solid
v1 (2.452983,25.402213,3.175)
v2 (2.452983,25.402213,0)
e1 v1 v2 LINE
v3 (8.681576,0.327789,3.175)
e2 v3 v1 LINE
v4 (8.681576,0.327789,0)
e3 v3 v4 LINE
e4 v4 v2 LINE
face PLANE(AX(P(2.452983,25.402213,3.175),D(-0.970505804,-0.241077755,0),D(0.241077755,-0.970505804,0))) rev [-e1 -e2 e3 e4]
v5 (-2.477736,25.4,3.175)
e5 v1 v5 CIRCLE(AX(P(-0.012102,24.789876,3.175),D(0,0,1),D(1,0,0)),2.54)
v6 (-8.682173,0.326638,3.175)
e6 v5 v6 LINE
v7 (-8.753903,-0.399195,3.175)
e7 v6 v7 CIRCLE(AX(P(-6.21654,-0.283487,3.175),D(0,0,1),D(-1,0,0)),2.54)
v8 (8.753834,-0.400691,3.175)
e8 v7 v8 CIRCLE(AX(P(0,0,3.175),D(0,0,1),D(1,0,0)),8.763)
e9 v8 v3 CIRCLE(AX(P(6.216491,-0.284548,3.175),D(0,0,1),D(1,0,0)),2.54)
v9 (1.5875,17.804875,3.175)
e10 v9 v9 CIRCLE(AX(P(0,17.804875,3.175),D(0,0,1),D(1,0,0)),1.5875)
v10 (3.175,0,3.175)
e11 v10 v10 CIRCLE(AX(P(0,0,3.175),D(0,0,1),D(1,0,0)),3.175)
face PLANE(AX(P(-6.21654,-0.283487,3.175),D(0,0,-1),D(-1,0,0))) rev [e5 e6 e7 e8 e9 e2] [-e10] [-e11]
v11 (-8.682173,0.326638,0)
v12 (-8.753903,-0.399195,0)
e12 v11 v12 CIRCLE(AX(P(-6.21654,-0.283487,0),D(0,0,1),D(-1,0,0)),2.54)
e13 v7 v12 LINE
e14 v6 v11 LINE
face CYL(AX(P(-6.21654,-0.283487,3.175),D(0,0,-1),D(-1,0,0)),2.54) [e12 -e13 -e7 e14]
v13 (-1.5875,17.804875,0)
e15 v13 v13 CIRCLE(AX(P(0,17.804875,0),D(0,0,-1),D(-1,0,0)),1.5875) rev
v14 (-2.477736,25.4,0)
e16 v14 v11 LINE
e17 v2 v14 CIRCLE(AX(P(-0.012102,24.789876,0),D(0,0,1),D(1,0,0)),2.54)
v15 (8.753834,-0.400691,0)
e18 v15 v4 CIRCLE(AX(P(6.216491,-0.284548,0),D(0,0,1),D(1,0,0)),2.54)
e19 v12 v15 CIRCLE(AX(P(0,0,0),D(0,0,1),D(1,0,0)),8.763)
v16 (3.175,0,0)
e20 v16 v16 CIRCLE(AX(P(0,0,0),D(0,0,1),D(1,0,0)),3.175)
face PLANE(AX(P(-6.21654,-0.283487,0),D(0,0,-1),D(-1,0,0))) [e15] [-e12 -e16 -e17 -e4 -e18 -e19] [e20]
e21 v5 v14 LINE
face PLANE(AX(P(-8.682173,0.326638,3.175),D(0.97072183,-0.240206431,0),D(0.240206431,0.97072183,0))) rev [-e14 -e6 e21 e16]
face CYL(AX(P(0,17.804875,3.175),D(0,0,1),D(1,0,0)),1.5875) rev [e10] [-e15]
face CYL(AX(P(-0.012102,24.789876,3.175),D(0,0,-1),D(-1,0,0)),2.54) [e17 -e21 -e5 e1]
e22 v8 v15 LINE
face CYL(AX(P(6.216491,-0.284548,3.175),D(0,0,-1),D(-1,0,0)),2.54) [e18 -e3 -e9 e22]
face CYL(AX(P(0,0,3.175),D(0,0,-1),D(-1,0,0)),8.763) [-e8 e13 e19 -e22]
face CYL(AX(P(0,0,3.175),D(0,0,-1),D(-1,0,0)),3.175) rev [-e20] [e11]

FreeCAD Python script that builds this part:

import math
import FreeCAD as App
import Part
import Sketcher

V = App.Vector
Q = App.Units.Quantity

doc = App.newDocument("Part")
body = doc.addObject("PartDesign::Body", "Body")

sketch1 = body.newObject("Sketcher::SketchObject", "Sketch")
sketch1.AttachmentSupport = (doc.getObject("XY_Plane"), [""])
sketch1.MapMode = "FlatFace"
sketch1.addGeometry(Part.LineSegment(V(-2.477736, 25.4, 0), V(-8.682173, 0.326638, 0)), False)
sketch1.addGeometry(Part.ArcOfCircle(Part.Circle(V(-6.21654, -0.283487, 0), V(0, 0, 1), 2.54), math.radians(166.101276), math.radians(182.610992)), False)
sketch1.addGeometry(Part.ArcOfCircle(Part.Circle(V(0, 0, 0), V(0, 0, 1), 8.763), math.radians(-177.389008), math.radians(-2.62078)), False)
sketch1.addGeometry(Part.ArcOfCircle(Part.Circle(V(6.216491, -0.284548, 0), V(0, 0, 1), 2.54), math.radians(-2.62078), math.radians(13.950159)), False)
sketch1.addGeometry(Part.LineSegment(V(8.681576, 0.327789, 0), V(2.452983, 25.402213, 0)), False)
sketch1.addGeometry(Part.ArcOfCircle(Part.Circle(V(-0.012102, 24.789876, 0), V(0, 0, 1), 2.54), math.radians(13.950159), math.radians(166.101276)), False)
sketch1.addGeometry(Part.Circle(V(0, 0, 0), V(0, 0, 1), 3.175), False)
sketch1.addConstraint(Sketcher.Constraint("Tangent", 0, 2, 1, 1))
sketch1.addConstraint(Sketcher.Constraint("Tangent", 1, 2, 2, 1))
sketch1.addConstraint(Sketcher.Constraint("Tangent", 2, 2, 3, 1))
sketch1.addConstraint(Sketcher.Constraint("Tangent", 3, 2, 4, 1))
sketch1.addConstraint(Sketcher.Constraint("Tangent", 4, 2, 5, 1))
sketch1.addConstraint(Sketcher.Constraint("Tangent", 5, 2, 0, 1))
sketch1.addConstraint(Sketcher.Constraint("Coincident", 2, 3, -1, 1))
sketch1.addConstraint(Sketcher.Constraint("Coincident", 6, 3, -1, 1))
sketch1.addConstraint(Sketcher.Constraint("Equal", 1, 3))
sketch1.addConstraint(Sketcher.Constraint("Equal", 3, 5))
sketch1.addConstraint(Sketcher.Constraint("Radius", 1, Q("0.1 in")))
sketch1.addConstraint(Sketcher.Constraint("Diameter", 6, Q("0.25 in")))
sketch1.addConstraint(Sketcher.Constraint("DistanceY", -1, 1, 5, 2, Q("1 in")))
sketch1.addConstraint(Sketcher.Constraint("Radius", 2, Q("0.345 in")))
sketch1.addConstraint(Sketcher.Constraint("Distance", 4, Q("25.836449 mm")))
sketch1.addConstraint(Sketcher.Constraint("DistanceX", 1, 3, -1, 1, Q("6.21654 mm")))
sketch1.addConstraint(Sketcher.Constraint("DistanceX", -1, 1, 3, 3, Q("6.216491 mm")))
pad1 = body.newObject("PartDesign::Pad", "Pad")
pad1.Profile = sketch1
pad1.Length = Q("0.125 in")

sketch2 = body.newObject("Sketcher::SketchObject", "Sketch001")
sketch2.AttachmentSupport = (doc.getObject("XY_Plane"), [""])
sketch2.MapMode = "FlatFace"
sketch2.AttachmentOffset = App.Placement(V(0, 0, 0.125 * 25.4), App.Rotation())
sketch2.addGeometry(Part.Circle(V(0, 17.804875, 0), V(0, 0, 1), 1.5875), False)
sketch2.addConstraint(Sketcher.Constraint("PointOnObject", 0, 3, -2))
sketch2.addConstraint(Sketcher.Constraint("Diameter", 0, Q("0.125 in")))
sketch2.addConstraint(Sketcher.Constraint("DistanceY", -1, 1, 0, 3, Q("17.804875 mm")))
doc.recompute()
hole = body.newObject("PartDesign::Hole", "Hole")
hole.Profile = sketch2
hole.ThreadType = "None"
hole.Diameter = Q("0.125 in")
hole.DepthType = "ThroughAll"

doc.recompute()
